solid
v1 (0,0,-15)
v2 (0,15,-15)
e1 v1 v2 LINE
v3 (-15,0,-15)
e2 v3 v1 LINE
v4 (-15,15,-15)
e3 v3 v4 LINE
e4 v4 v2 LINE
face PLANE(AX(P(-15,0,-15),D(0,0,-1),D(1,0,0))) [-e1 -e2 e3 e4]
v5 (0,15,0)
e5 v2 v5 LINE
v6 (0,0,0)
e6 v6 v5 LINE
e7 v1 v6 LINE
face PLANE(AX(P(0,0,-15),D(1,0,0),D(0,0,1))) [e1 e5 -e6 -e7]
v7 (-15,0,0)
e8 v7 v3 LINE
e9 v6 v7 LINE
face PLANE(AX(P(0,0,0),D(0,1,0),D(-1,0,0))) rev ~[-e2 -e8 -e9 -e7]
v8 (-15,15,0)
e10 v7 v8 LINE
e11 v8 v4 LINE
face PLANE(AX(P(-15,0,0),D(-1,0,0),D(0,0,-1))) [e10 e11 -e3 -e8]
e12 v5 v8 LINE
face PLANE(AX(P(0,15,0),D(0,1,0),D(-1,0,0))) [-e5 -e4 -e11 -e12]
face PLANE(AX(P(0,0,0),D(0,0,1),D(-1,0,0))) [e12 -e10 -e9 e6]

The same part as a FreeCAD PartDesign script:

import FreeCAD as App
import Part
import Sketcher

V = App.Vector
Q = App.Units.Quantity


def add_polygon(sketch, points):
    """Adds a closed chain of lines whose ends are joined by coincident constraints."""
    first, n = sketch.GeometryCount, len(points)
    for a, b in zip(points, points[1:] + points[:1]):
        sketch.addGeometry(Part.LineSegment(App.Vector(*a, 0), App.Vector(*b, 0)), False)
    for i in range(n):
        sketch.addConstraint(Sketcher.Constraint("Coincident", first + i, 2, first + (i + 1) % n, 1))

doc = App.newDocument("Part")
body = doc.addObject("PartDesign::Body", "Body")

# Sketch on XZ plane
sketch1 = body.newObject("Sketcher::SketchObject", "Sketch")
sketch1.AttachmentSupport = (doc.getObject("XZ_Plane"), [""])
sketch1.MapMode = "FlatFace"
add_polygon(sketch1, [(-15, 0), (0, 0), (0, -15), (-15, -15)])  # lines 0-3
sketch1.addConstraint(Sketcher.Constraint("Horizontal", 0))
sketch1.addConstraint(Sketcher.Constraint("Vertical", 1))
sketch1.addConstraint(Sketcher.Constraint("Horizontal", 2))
sketch1.addConstraint(Sketcher.Constraint("Vertical", 3))
sketch1.addConstraint(Sketcher.Constraint("Coincident", 0, 2, -1, 1))
sketch1.addConstraint(Sketcher.Constraint("Equal", 2, 1))
sketch1.addConstraint(Sketcher.Constraint("DistanceX", 0, 1, 0, 2, Q("15 mm")))
pad1 = body.newObject("PartDesign::Pad", "Pad")
pad1.Profile = sketch1
pad1.Length = 15
pad1.Reversed = True

doc.recompute()
